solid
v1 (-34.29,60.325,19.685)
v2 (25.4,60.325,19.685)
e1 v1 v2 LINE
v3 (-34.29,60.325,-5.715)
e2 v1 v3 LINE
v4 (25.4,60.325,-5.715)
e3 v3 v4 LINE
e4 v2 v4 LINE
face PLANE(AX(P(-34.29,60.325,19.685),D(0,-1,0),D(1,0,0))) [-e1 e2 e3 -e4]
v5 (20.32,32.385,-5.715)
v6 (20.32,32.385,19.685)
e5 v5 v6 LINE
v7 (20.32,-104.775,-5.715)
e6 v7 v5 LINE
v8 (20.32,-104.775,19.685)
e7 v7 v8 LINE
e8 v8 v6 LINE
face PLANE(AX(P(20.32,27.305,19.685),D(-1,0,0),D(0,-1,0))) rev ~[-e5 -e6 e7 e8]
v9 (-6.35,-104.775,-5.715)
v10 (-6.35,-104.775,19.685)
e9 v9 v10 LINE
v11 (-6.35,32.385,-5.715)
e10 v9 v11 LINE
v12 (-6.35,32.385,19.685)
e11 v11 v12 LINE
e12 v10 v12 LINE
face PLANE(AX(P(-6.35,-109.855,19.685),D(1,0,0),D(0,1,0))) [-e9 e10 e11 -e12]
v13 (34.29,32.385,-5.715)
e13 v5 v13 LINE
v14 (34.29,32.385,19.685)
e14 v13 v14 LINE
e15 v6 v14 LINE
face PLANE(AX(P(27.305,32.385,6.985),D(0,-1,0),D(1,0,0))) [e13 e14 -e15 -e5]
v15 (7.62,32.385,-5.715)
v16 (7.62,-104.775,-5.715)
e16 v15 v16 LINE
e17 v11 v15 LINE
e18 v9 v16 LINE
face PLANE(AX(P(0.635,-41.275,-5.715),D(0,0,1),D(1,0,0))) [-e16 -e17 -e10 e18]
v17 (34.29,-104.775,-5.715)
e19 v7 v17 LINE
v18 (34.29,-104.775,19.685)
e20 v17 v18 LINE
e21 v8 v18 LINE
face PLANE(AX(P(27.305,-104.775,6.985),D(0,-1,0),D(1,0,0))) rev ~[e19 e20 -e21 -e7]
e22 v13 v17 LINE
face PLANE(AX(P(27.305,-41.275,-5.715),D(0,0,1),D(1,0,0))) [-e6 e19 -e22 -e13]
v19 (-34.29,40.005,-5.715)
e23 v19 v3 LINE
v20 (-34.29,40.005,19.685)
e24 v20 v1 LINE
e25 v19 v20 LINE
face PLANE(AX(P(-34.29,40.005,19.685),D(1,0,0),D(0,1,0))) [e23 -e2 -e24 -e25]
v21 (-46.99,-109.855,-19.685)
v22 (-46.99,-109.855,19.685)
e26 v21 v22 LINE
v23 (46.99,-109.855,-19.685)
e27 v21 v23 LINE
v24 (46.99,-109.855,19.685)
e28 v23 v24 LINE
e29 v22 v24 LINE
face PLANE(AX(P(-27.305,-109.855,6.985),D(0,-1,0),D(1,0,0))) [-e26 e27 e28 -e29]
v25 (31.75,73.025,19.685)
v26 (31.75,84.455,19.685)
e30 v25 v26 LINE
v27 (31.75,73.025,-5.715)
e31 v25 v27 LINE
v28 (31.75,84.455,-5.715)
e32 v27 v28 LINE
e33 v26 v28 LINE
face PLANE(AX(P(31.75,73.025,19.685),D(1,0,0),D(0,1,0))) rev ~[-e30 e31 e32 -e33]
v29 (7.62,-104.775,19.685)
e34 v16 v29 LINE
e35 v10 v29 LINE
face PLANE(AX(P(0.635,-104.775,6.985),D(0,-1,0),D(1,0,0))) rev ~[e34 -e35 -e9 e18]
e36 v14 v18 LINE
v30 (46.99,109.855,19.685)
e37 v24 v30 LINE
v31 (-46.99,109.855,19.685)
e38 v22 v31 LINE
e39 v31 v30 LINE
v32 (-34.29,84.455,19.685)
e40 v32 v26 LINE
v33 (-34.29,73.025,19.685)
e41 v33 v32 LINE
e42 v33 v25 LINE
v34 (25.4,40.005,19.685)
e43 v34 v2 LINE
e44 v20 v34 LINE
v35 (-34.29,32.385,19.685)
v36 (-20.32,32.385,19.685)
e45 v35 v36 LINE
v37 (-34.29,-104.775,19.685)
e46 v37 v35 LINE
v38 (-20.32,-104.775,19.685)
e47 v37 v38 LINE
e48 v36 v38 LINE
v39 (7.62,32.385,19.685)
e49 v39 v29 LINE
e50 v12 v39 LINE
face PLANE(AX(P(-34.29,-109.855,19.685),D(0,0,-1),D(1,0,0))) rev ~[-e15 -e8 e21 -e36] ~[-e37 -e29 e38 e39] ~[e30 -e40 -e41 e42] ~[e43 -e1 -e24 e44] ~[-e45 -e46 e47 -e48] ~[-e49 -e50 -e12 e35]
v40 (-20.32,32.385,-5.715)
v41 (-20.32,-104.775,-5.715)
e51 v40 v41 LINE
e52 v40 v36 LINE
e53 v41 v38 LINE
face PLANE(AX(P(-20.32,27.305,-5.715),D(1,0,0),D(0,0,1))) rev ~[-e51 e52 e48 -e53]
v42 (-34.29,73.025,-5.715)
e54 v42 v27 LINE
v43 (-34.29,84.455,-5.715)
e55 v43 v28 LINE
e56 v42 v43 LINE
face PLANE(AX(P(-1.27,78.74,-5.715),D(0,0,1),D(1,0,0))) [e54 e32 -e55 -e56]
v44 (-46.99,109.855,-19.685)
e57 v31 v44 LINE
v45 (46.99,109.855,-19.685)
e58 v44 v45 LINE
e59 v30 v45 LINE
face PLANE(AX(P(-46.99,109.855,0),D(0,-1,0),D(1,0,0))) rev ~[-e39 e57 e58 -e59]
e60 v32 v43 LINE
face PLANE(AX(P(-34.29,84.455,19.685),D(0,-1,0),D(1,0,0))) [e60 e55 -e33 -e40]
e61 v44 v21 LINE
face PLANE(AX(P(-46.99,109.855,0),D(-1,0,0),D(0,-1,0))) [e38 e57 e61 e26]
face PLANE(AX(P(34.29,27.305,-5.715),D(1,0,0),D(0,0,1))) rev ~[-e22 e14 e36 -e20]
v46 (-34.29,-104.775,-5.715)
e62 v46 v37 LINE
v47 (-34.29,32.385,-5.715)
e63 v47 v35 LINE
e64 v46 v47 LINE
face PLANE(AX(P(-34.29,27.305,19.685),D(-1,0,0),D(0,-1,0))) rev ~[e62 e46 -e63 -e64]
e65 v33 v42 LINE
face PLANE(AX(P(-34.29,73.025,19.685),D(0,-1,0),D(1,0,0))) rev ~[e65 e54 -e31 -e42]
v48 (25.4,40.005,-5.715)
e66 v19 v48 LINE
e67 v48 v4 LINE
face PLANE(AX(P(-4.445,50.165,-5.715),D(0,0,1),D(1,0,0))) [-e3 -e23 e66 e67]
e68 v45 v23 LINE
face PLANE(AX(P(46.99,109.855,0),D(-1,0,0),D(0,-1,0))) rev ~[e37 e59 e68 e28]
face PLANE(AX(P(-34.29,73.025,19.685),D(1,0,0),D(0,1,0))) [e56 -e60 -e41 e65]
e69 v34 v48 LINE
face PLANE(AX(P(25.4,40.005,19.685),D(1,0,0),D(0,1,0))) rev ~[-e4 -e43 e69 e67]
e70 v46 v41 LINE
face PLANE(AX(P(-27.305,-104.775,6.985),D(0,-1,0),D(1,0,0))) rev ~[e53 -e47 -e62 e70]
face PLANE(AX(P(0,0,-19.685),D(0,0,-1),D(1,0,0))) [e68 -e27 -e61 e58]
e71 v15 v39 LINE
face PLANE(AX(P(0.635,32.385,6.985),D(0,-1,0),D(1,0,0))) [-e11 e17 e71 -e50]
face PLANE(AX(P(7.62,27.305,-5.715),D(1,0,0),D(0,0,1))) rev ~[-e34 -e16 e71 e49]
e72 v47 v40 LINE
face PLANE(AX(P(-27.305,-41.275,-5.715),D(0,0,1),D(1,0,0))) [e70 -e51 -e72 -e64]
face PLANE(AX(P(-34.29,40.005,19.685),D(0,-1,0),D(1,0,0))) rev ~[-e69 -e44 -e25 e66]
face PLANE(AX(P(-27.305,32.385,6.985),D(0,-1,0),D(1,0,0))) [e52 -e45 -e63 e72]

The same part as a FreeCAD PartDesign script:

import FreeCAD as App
import Part
import Sketcher
from FreeCAD import Vector
Q = App.Units.Quantity


def add_polygon(sketch, points):
    """Adds a closed chain of lines whose ends are joined by coincident constraints."""
    first, n = sketch.GeometryCount, len(points)
    for a, b in zip(points, points[1:] + points[:1]):
        sketch.addGeometry(Part.LineSegment(App.Vector(*a, 0), App.Vector(*b, 0)), False)
    for i in range(n):
        sketch.addConstraint(Sketcher.Constraint("Coincident", first + i, 2, first + (i + 1) % n, 1))

doc = App.newDocument("Part")
params = doc.addObject("Spreadsheet::Sheet", "Params")
for row, (alias, value) in enumerate([
    ("sketch1_width", "3.7 in"),
    ("sketch1_height", "8.65 in"),
    ("pad1_length", "0.775 in"),
    ("sketch2_width", "3.7 in"),
    ("sketch2_height", "8.65 in"),
    ("pad2_length", "0.775 in"),
    ("sketch3_width", "2.6 in"),
    ("sketch3_height", "5.4 in"),
    ("sketch3_height2", "0.8 in"),
    ("sketch3_width2", "0.55 in"),
    ("sketch3_width3", "2.35 in"),
    ("pocket1_length", "1 in"),
    ("sketch4_height", "0.8 in"),
    ("sketch4_width", "2.35 in"),
    ("pocket2_length", "0.25 in"),
    ("sketch5_height", "5.4 in"),
    ("sketch5_width", "0.55 in"),
    ("pad3_length", "0.3 in"),
    ("sketch6_height", "5.4 in"),
    ("sketch6_width", "0.55 in"),
    ("pocket3_length", "0.5 in"),
    ("sketch7_height", "1 in"),
    ("sketch7_width", "0.55 in"),
    ("pad4_length", "0.2 in"),
    ("sketch8_height", "1 in"),
    ("sketch8_width", "0.55 in"),
    ("pocket4_length", "0.2 in"),
], start=1):
    params.set(f"A{row}", alias)
    params.set(f"B{row}", "=" + value)
    params.setAlias(f"B{row}", alias)

body = doc.addObject("PartDesign::Body", "Body")

# Sketch on XY plane
sketch1 = body.newObject("Sketcher::SketchObject", "Sketch")
sketch1.AttachmentSupport = (doc.getObject("XY_Plane"), [""])
sketch1.MapMode = "FlatFace"
add_polygon(sketch1, [(-47, 110), (-47, -110), (47, -110), (47, 110)])  # lines 0-3
sketch1.addConstraint([
    Sketcher.Constraint("Vertical", 0),
    Sketcher.Constraint("Horizontal", 1),
    Sketcher.Constraint("Vertical", 2),
    Sketcher.Constraint("Horizontal", 3),
    Sketcher.Constraint("Symmetric", 0, 2, 2, 2, -1, 1),
    Sketcher.Constraint("DistanceX", 1, 1, 1, 2, Q("3.7 in")),
    Sketcher.Constraint("DistanceY", 0, 2, 0, 1, Q("8.65 in")),
])
sketch1.setExpression("Constraints[9]", "Params.sketch1_width")
sketch1.setExpression("Constraints[10]", "Params.sketch1_height")
pad1 = body.newObject("PartDesign::Pad", "Pad")
pad1.Profile = sketch1
pad1.setExpression("Length", "Params.pad1_length")

# Sketch on XY plane
sketch2 = body.newObject("Sketcher::SketchObject", "Sketch001")
sketch2.AttachmentSupport = (doc.getObject("XY_Plane"), [""])
sketch2.MapMode = "FlatFace"
add_polygon(sketch2, [(-47, -110), (-47, 110), (47, 110), (47, -110)])  # lines 0-3
sketch2.addConstraint([
    Sketcher.Constraint("Vertical", 0),
    Sketcher.Constraint("Horizontal", 1),
    Sketcher.Constraint("Vertical", 2),
    Sketcher.Constraint("Horizontal", 3),
    Sketcher.Constraint("Symmetric", 0, 2, 2, 2, -1, 1),
    Sketcher.Constraint("DistanceX", 1, 1, 1, 2, Q("3.7 in")),
    Sketcher.Constraint("DistanceY", 0, 1, 0, 2, Q("8.65 in")),
])
sketch2.setExpression("Constraints[9]", "Params.sketch2_width")
sketch2.setExpression("Constraints[10]", "Params.sketch2_height")
pad2 = body.newObject("PartDesign::Pad", "Pad001")
pad2.Profile = sketch2
pad2.setExpression("Length", "Params.pad2_length")
pad2.Reversed = True

# Sketch on XY plane
sketch3 = body.newObject("Sketcher::SketchObject", "Sketch002")
sketch3.AttachmentSupport = (doc.getObject("XY_Plane"), [""])
sketch3.MapMode = "FlatFace"
sketch3.AttachmentOffset = App.Placement(Vector(0, 0, 0.775 * 25.4), App.Rotation())
add_polygon(sketch3, [(-34, -110), (-20, -110), (-20, 27), (-34, 27)])  # lines 0-3
add_polygon(sketch3, [(20, -110), (34, -110), (34, 27), (20, 27)])  # lines 4-7
add_polygon(sketch3, [(-6, 27), (-6, -110), (8, -110), (8, 27)])  # lines 8-11
add_polygon(sketch3, [(-34, 60), (-34, 40), (25, 40), (25, 60)])  # lines 12-15
add_polygon(sketch3, [(-34, 84), (-34, 73), (32, 73), (32, 84)])  # lines 16-19
sketch3.addConstraint([
    Sketcher.Constraint("Horizontal", 0),
    Sketcher.Constraint("Vertical", 1),
    Sketcher.Constraint("Horizontal", 2),
    Sketcher.Constraint("Vertical", 3),
    Sketcher.Constraint("Horizontal", 4),
    Sketcher.Constraint("Vertical", 5),
    Sketcher.Constraint("Horizontal", 6),
    Sketcher.Constraint("Vertical", 7),
    Sketcher.Constraint("Vertical", 8),
    Sketcher.Constraint("Horizontal", 9),
    Sketcher.Constraint("Vertical", 10),
    Sketcher.Constraint("Horizontal", 11),
    Sketcher.Constraint("Vertical", 12),
    Sketcher.Constraint("Horizontal", 13),
    Sketcher.Constraint("Vertical", 14),
    Sketcher.Constraint("Horizontal", 15),
    Sketcher.Constraint("Vertical", 16),
    Sketcher.Constraint("Horizontal", 17),
    Sketcher.Constraint("Vertical", 18),
    Sketcher.Constraint("Horizontal", 19),
    Sketcher.Constraint("Symmetric", 3, 2, 4, 2, -2),
    Sketcher.Constraint("Symmetric", 1, 2, 6, 2, -2),
    Sketcher.Constraint("Horizontal", 7, 2, 8, 2),
    Sketcher.Constraint("Horizontal", 6, 2, 10, 2),
    Sketcher.Constraint("Vertical", 3, 2, 12, 2),
    Sketcher.Constraint("Vertical", 15, 2, 16, 2),
    Sketcher.Constraint("Equal", 6, 9),
    Sketcher.Constraint("DistanceX", 17, 1, 17, 2, Q("2.6 in")),
    Sketcher.Constraint("DistanceY", 1, 1, 1, 2, Q("5.4 in")),
    Sketcher.Constraint("DistanceY", 12, 2, 12, 1, Q("0.8 in")),
    Sketcher.Constraint("DistanceX", -1, 1, 13, 2, Q("1 in")),
    Sketcher.Constraint("DistanceX", 0, 1, 0, 2, Q("0.55 in")),
    Sketcher.Constraint("DistanceX", 13, 1, 13, 2, Q("2.35 in")),
    Sketcher.Constraint("DistanceY", 16, 2, 16, 1, Q("0.45 in")),
    Sketcher.Constraint("DistanceX", -1, 1, 9, 2, Q("0.3 in")),
    Sketcher.Constraint("DistanceY", 2, 2, 12, 2, Q("0.5 in")),
    Sketcher.Constraint("DistanceY", 15, 2, 16, 2, Q("0.5 in")),
    Sketcher.Constraint("DistanceY", 0, 2, -1, 1, Q("4.325 in")),
])
sketch3.setExpression("Constraints[47]", "Params.sketch3_width")
sketch3.setExpression("Constraints[48]", "Params.sketch3_height")
sketch3.setExpression("Constraints[49]", "Params.sketch3_height2")
sketch3.setExpression("Constraints[51]", "Params.sketch3_width2")
sketch3.setExpression("Constraints[52]", "Params.sketch3_width3")
pocket1 = body.newObject("PartDesign::Pocket", "Pocket")
pocket1.Profile = sketch3
pocket1.setExpression("Length", "Params.pocket1_length")

# Sketch on XY plane
sketch4 = body.newObject("Sketcher::SketchObject", "Sketch003")
sketch4.AttachmentSupport = (doc.getObject("XY_Plane"), [""])
sketch4.MapMode = "FlatFace"
sketch4.AttachmentOffset = App.Placement(Vector(0, 0, 0.775 * 25.4), App.Rotation())
add_polygon(sketch4, [(-34, 60), (-34, 40), (25, 40), (25, 60)])  # lines 0-3
sketch4.addConstraint([
    Sketcher.Constraint("Vertical", 0),
    Sketcher.Constraint("Horizontal", 1),
    Sketcher.Constraint("Vertical", 2),
    Sketcher.Constraint("Horizontal", 3),
    Sketcher.Constraint("DistanceY", 0, 2, 0, 1, Q("0.8 in")),
    Sketcher.Constraint("DistanceX", -1, 1, 1, 2, Q("1 in")),
    Sketcher.Constraint("DistanceX", 1, 1, 1, 2, Q("2.35 in")),
    Sketcher.Constraint("DistanceY", -1, 1, 0, 2, Q("1.575 in")),
])
sketch4.setExpression("Constraints[8]", "Params.sketch4_height")
sketch4.setExpression("Constraints[10]", "Params.sketch4_width")
pocket2 = body.newObject("PartDesign::Pocket", "Pocket001")
pocket2.Profile = sketch4
pocket2.setExpression("Length", "Params.pocket2_length")

# Sketch on XY plane
sketch5 = body.newObject("Sketcher::SketchObject", "Sketch004")
sketch5.AttachmentSupport = (doc.getObject("XY_Plane"), [""])
sketch5.MapMode = "FlatFace"
sketch5.AttachmentOffset = App.Placement(Vector(0, 0, 0.775 * 25.4), App.Rotation())
add_polygon(sketch5, [(-34, 27), (-34, -110), (-20, -110), (-20, 27)])  # lines 0-3
add_polygon(sketch5, [(-6, 27), (-6, -110), (8, -110), (8, 27)])  # lines 4-7
add_polygon(sketch5, [(20, 27), (20, -110), (34, -110), (34, 27)])  # lines 8-11
sketch5.addConstraint([
    Sketcher.Constraint("Vertical", 0),
    Sketcher.Constraint("Horizontal", 1),
    Sketcher.Constraint("Vertical", 2),
    Sketcher.Constraint("Horizontal", 3),
    Sketcher.Constraint("Vertical", 4),
    Sketcher.Constraint("Horizontal", 5),
    Sketcher.Constraint("Vertical", 6),
    Sketcher.Constraint("Horizontal", 7),
    Sketcher.Constraint("Vertical", 8),
    Sketcher.Constraint("Horizontal", 9),
    Sketcher.Constraint("Vertical", 10),
    Sketcher.Constraint("Horizontal", 11),
    Sketcher.Constraint("Symmetric", 1, 2, 8, 2, -2),
    Sketcher.Constraint("Symmetric", 3, 2, 10, 2, -2),
    Sketcher.Constraint("Horizontal", 1, 2, 4, 2),
    Sketcher.Constraint("Horizontal", 3, 2, 6, 2),
    Sketcher.Constraint("Equal", 3, 5),
    Sketcher.Constraint("DistanceY", 0, 2, 0, 1, Q("5.4 in")),
    Sketcher.Constraint("DistanceX", 1, 1, 1, 2, Q("0.55 in")),
    Sketcher.Constraint("DistanceX", 1, 2, -1, 1, Q("0.8 in")),
    Sketcher.Constraint("DistanceX", -1, 1, 5, 2, Q("0.3 in")),
    Sketcher.Constraint("DistanceY", 0, 2, -1, 1, Q("4.325 in")),
])
sketch5.setExpression("Constraints[29]", "Params.sketch5_height")
sketch5.setExpression("Constraints[30]", "Params.sketch5_width")
pad3 = body.newObject("PartDesign::Pad", "Pad002")
pad3.Profile = sketch5
pad3.setExpression("Length", "Params.pad3_length")
pad3.Reversed = True

# Sketch on XY plane
sketch6 = body.newObject("Sketcher::SketchObject", "Sketch005")
sketch6.AttachmentSupport = (doc.getObject("XY_Plane"), [""])
sketch6.MapMode = "FlatFace"
sketch6.AttachmentOffset = App.Placement(Vector(0, 0, 0.775 * 25.4), App.Rotation())
add_polygon(sketch6, [(20, -110), (34, -110), (34, 27), (20, 27)])  # lines 0-3
add_polygon(sketch6, [(-6, 27), (-6, -110), (8, -110), (8, 27)])  # lines 4-7
add_polygon(sketch6, [(-34, -110), (-20, -110), (-20, 27), (-34, 27)])  # lines 8-11
sketch6.addConstraint([
    Sketcher.Constraint("Horizontal", 0),
    Sketcher.Constraint("Vertical", 1),
    Sketcher.Constraint("Horizontal", 2),
    Sketcher.Constraint("Vertical", 3),
    Sketcher.Constraint("Vertical", 4),
    Sketcher.Constraint("Horizontal", 5),
    Sketcher.Constraint("Vertical", 6),
    Sketcher.Constraint("Horizontal", 7),
    Sketcher.Constraint("Horizontal", 8),
    Sketcher.Constraint("Vertical", 9),
    Sketcher.Constraint("Horizontal", 10),
    Sketcher.Constraint("Vertical", 11),
    Sketcher.Constraint("Symmetric", 3, 2, 8, 2, -2),
    Sketcher.Constraint("Symmetric", 1, 2, 10, 2, -2),
    Sketcher.Constraint("Horizontal", 3, 2, 4, 2),
    Sketcher.Constraint("Horizontal", 2, 2, 6, 2),
    Sketcher.Constraint("Equal", 2, 5),
    Sketcher.Constraint("DistanceY", 1, 1, 1, 2, Q("5.4 in")),
    Sketcher.Constraint("DistanceX", 0, 1, 0, 2, Q("0.55 in")),
    Sketcher.Constraint("DistanceX", -1, 1, 2, 2, Q("0.8 in")),
    Sketcher.Constraint("DistanceX", -1, 1, 5, 2, Q("0.3 in")),
    Sketcher.Constraint("DistanceY", 0, 2, -1, 1, Q("4.325 in")),
])
sketch6.setExpression("Constraints[29]", "Params.sketch6_height")
sketch6.setExpression("Constraints[30]", "Params.sketch6_width")
pocket3 = body.newObject("PartDesign::Pocket", "Pocket002")
pocket3.Profile = sketch6
pocket3.setExpression("Length", "Params.pocket3_length")

# Sketch on XZ plane
sketch7 = body.newObject("Sketcher::SketchObject", "Sketch006")
sketch7.AttachmentSupport = (doc.getObject("XZ_Plane"), [""])
sketch7.MapMode = "FlatFace"
sketch7.AttachmentOffset = App.Placement(Vector(0, 0, 4.325 * 25.4), App.Rotation())
add_polygon(sketch7, [(-34, 20), (-34, -6), (-20, -6), (-20, 20)])  # lines 0-3
add_polygon(sketch7, [(-6, 20), (-6, -6), (8, -6), (8, 20)])  # lines 4-7
add_polygon(sketch7, [(20, 20), (20, -6), (34, -6), (34, 20)])  # lines 8-11
sketch7.addConstraint([
    Sketcher.Constraint("Vertical", 0),
    Sketcher.Constraint("Horizontal", 1),
    Sketcher.Constraint("Vertical", 2),
    Sketcher.Constraint("Horizontal", 3),
    Sketcher.Constraint("Vertical", 4),
    Sketcher.Constraint("Horizontal", 5),
    Sketcher.Constraint("Vertical", 6),
    Sketcher.Constraint("Horizontal", 7),
    Sketcher.Constraint("Vertical", 8),
    Sketcher.Constraint("Horizontal", 9),
    Sketcher.Constraint("Vertical", 10),
    Sketcher.Constraint("Horizontal", 11),
    Sketcher.Constraint("Symmetric", 1, 2, 8, 2, -2),
    Sketcher.Constraint("Symmetric", 3, 2, 10, 2, -2),
    Sketcher.Constraint("Horizontal", 1, 2, 4, 2),
    Sketcher.Constraint("Horizontal", 3, 2, 6, 2),
    Sketcher.Constraint("Equal", 3, 5),
    Sketcher.Constraint("DistanceY", 0, 2, 0, 1, Q("1 in")),
    Sketcher.Constraint("DistanceX", 1, 1, 1, 2, Q("0.55 in")),
    Sketcher.Constraint("DistanceX", 1, 2, -1, 1, Q("0.8 in")),
    Sketcher.Constraint("DistanceX", -1, 1, 5, 2, Q("0.3 in")),
    Sketcher.Constraint("DistanceY", 0, 2, -1, 1, Q("0.225 in")),
])
sketch7.setExpression("Constraints[29]", "Params.sketch7_height")
sketch7.setExpression("Constraints[30]", "Params.sketch7_width")
pad4 = body.newObject("PartDesign::Pad", "Pad003")
pad4.Profile = sketch7
pad4.setExpression("Length", "Params.pad4_length")
pad4.Reversed = True

# Sketch on XZ plane
sketch8 = body.newObject("Sketcher::SketchObject", "Sketch007")
sketch8.AttachmentSupport = (doc.getObject("XZ_Plane"), [""])
sketch8.MapMode = "FlatFace"
sketch8.AttachmentOffset = App.Placement(Vector(0, 0, -1.075 * 25.4), App.Rotation())
add_polygon(sketch8, [(-34, 20), (-34, -6), (-20, -6), (-20, 20)])  # lines 0-3
add_polygon(sketch8, [(-6, 20), (-6, -6), (8, -6), (8, 20)])  # lines 4-7
add_polygon(sketch8, [(20, 20), (20, -6), (34, -6), (34, 20)])  # lines 8-11
sketch8.addConstraint([
    Sketcher.Constraint("Vertical", 0),
    Sketcher.Constraint("Horizontal", 1),
    Sketcher.Constraint("Vertical", 2),
    Sketcher.Constraint("Horizontal", 3),
    Sketcher.Constraint("Vertical", 4),
    Sketcher.Constraint("Horizontal", 5),
    Sketcher.Constraint("Vertical", 6),
    Sketcher.Constraint("Horizontal", 7),
    Sketcher.Constraint("Vertical", 8),
    Sketcher.Constraint("Horizontal", 9),
    Sketcher.Constraint("Vertical", 10),
    Sketcher.Constraint("Horizontal", 11),
    Sketcher.Constraint("Symmetric", 1, 2, 8, 2, -2),
    Sketcher.Constraint("Symmetric", 3, 2, 10, 2, -2),
    Sketcher.Constraint("Horizontal", 1, 2, 4, 2),
    Sketcher.Constraint("Horizontal", 3, 2, 6, 2),
    Sketcher.Constraint("Equal", 3, 5),
    Sketcher.Constraint("DistanceY", 0, 2, 0, 1, Q("1 in")),
    Sketcher.Constraint("DistanceX", 1, 1, 1, 2, Q("0.55 in")),
    Sketcher.Constraint("DistanceX", 1, 2, -1, 1, Q("0.8 in")),
    Sketcher.Constraint("DistanceX", -1, 1, 5, 2, Q("0.3 in")),
    Sketcher.Constraint("DistanceY", 0, 2, -1, 1, Q("0.225 in")),
])
sketch8.setExpression("Constraints[29]", "Params.sketch8_height")
sketch8.setExpression("Constraints[30]", "Params.sketch8_width")
pocket4 = body.newObject("PartDesign::Pocket", "Pocket003")
pocket4.Profile = sketch8
pocket4.setExpression("Length", "Params.pocket4_length")

doc.recompute()
